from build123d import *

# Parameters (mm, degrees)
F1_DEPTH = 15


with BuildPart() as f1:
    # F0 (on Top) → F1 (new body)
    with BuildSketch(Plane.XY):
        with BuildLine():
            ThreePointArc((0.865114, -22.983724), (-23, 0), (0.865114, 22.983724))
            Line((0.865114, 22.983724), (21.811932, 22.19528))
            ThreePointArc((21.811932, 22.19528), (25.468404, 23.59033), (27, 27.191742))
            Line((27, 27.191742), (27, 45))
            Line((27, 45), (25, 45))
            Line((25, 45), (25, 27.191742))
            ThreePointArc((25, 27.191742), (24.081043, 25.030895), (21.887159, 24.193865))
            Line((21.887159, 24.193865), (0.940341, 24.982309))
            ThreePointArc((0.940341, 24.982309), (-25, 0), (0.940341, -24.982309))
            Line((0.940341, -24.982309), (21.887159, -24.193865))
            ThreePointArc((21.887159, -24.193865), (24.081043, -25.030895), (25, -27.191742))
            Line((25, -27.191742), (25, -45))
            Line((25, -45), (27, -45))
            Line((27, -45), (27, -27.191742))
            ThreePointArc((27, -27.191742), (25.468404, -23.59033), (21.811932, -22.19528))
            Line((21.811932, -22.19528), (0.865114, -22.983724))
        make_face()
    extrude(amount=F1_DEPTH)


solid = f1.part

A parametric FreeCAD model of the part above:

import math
import FreeCAD as App
import Part
import Sketcher

V = App.Vector
Q = App.Units.Quantity

doc = App.newDocument("Part")
body = doc.addObject("PartDesign::Body", "Body")

sketch1 = doc.addObject("Sketcher::SketchObject", "Sketch")
body.addObject(sketch1)
sketch1.AttachmentSupport = (doc.XY_Plane, [""])
sketch1.MapMode = "FlatFace"
sketch1.addGeometry(Part.ArcOfCircle(Part.Circle(V(0, 0, 0), V(0, 0, 1), 23), math.radians(87.844388), math.radians(272.155612)), False)
sketch1.addGeometry(Part.LineSegment(V(0.865114, 22.983724, 0), V(21.811932, 22.19528, 0)), False)
sketch1.addGeometry(Part.ArcOfCircle(Part.Circle(V(21.999998, 27.191743, 0), V(0, 0, 1), 5.000002), math.radians(-92.155591), math.radians(-0.000016)), False)
sketch1.addGeometry(Part.LineSegment(V(27, 27.191742, 0), V(27, 45, 0)), False)
sketch1.addGeometry(Part.LineSegment(V(27, 45, 0), V(25, 45, 0)), False)
sketch1.addGeometry(Part.LineSegment(V(25, 45, 0), V(25, 27.191742, 0)), False)
sketch1.addGeometry(Part.ArcOfCircle(Part.Circle(V(22, 27.191742, 0), V(0, 0, 1), 3), math.radians(-92.155613), math.radians(-0.000001)), False)
sketch1.addGeometry(Part.LineSegment(V(21.887159, 24.193865, 0), V(0.940341, 24.982309, 0)), False)
sketch1.addGeometry(Part.ArcOfCircle(Part.Circle(V(0, 0, 0), V(0, 0, 1), 25), math.radians(87.844389), math.radians(272.155611)), False)
sketch1.addGeometry(Part.LineSegment(V(0.940341, -24.982309, 0), V(21.887159, -24.193865, 0)), False)
sketch1.addGeometry(Part.ArcOfCircle(Part.Circle(V(22, -27.191742, 0), V(0, 0, 1), 3), math.radians(0.000001), math.radians(92.155613)), False)
sketch1.addGeometry(Part.LineSegment(V(25, -27.191742, 0), V(25, -45, 0)), False)
sketch1.addGeometry(Part.LineSegment(V(25, -45, 0), V(27, -45, 0)), False)
sketch1.addGeometry(Part.LineSegment(V(27, -45, 0), V(27, -27.191742, 0)), False)
sketch1.addGeometry(Part.ArcOfCircle(Part.Circle(V(21.999998, -27.191743, 0), V(0, 0, 1), 5.000002), math.radians(0.000016), math.radians(92.155591)), False)
sketch1.addGeometry(Part.LineSegment(V(21.811932, -22.19528, 0), V(0.865114, -22.983724, 0)), False)
sketch1.addConstraint(Sketcher.Constraint("Tangent", 0, 1, 1, 1))
sketch1.addConstraint(Sketcher.Constraint("Tangent", 1, 2, 2, 1))
sketch1.addConstraint(Sketcher.Constraint("Tangent", 2, 2, 3, 1))
sketch1.addConstraint(Sketcher.Constraint("Coincident", 3, 2, 4, 1))
sketch1.addConstraint(Sketcher.Constraint("Coincident", 4, 2, 5, 1))
sketch1.addConstraint(Sketcher.Constraint("Tangent", 5, 2, 6, 2))
sketch1.addConstraint(Sketcher.Constraint("Tangent", 6, 1, 7, 1))
sketch1.addConstraint(Sketcher.Constraint("Tangent", 7, 2, 8, 1))
sketch1.addConstraint(Sketcher.Constraint("Tangent", 8, 2, 9, 1))
sketch1.addConstraint(Sketcher.Constraint("Tangent", 9, 2, 10, 2))
sketch1.addConstraint(Sketcher.Constraint("Tangent", 10, 1, 11, 1))
sketch1.addConstraint(Sketcher.Constraint("Coincident", 11, 2, 12, 1))
sketch1.addConstraint(Sketcher.Constraint("Coincident", 12, 2, 13, 1))
sketch1.addConstraint(Sketcher.Constraint("Tangent", 13, 2, 14, 1))
sketch1.addConstraint(Sketcher.Constraint("Tangent", 14, 2, 15, 1))
sketch1.addConstraint(Sketcher.Constraint("Tangent", 15, 2, 0, 2))
sketch1.addConstraint(Sketcher.Constraint("Vertical", 3))
sketch1.addConstraint(Sketcher.Constraint("Horizontal", 4))
sketch1.addConstraint(Sketcher.Constraint("Vertical", 5))
sketch1.addConstraint(Sketcher.Constraint("Vertical", 11))
sketch1.addConstraint(Sketcher.Constraint("Horizontal", 12))
sketch1.addConstraint(Sketcher.Constraint("Vertical", 13))
sketch1.addConstraint(Sketcher.Constraint("Coincident", 0, 3, -1, 1))
sketch1.addConstraint(Sketcher.Constraint("Coincident", 8, 3, -1, 1))
sketch1.addConstraint(Sketcher.Constraint("Coincident", 6, 3, 2, 3))
sketch1.addConstraint(Sketcher.Constraint("Coincident", 14, 3, 10, 3))
sketch1.addConstraint(Sketcher.Constraint("Equal", 6, 10))
sketch1.addConstraint(Sketcher.Constraint("Equal", 2, 14))
sketch1.addConstraint(Sketcher.Constraint("Symmetric", 2, 3, 10, 3, -1))
sketch1.addConstraint(Sketcher.Constraint("Parallel", 1, 7))
sketch1.addConstraint(Sketcher.Constraint("Equal", 5, 11))
sketch1.addConstraint(Sketcher.Constraint("Radius", 0, Q("23 mm")))
sketch1.addConstraint(Sketcher.Constraint("Radius", 2, Q("5.000002 mm")))
sketch1.addConstraint(Sketcher.Constraint("Radius", 6, Q("3 mm")))
sketch1.addConstraint(Sketcher.Constraint("DistanceX", -1, 1, 2, 3, Q("21.999998 mm")))
sketch1.addConstraint(Sketcher.Constraint("DistanceY", -1, 1, 3, 2, Q("45 mm")))
sketch1.addConstraint(Sketcher.Constraint("Distance", 1, Q("20.961651 mm")))
pad1 = doc.addObject("PartDesign::Pad", "Pad")
body.addObject(pad1)
pad1.Profile = sketch1
pad1.Length = 15

doc.recompute()
